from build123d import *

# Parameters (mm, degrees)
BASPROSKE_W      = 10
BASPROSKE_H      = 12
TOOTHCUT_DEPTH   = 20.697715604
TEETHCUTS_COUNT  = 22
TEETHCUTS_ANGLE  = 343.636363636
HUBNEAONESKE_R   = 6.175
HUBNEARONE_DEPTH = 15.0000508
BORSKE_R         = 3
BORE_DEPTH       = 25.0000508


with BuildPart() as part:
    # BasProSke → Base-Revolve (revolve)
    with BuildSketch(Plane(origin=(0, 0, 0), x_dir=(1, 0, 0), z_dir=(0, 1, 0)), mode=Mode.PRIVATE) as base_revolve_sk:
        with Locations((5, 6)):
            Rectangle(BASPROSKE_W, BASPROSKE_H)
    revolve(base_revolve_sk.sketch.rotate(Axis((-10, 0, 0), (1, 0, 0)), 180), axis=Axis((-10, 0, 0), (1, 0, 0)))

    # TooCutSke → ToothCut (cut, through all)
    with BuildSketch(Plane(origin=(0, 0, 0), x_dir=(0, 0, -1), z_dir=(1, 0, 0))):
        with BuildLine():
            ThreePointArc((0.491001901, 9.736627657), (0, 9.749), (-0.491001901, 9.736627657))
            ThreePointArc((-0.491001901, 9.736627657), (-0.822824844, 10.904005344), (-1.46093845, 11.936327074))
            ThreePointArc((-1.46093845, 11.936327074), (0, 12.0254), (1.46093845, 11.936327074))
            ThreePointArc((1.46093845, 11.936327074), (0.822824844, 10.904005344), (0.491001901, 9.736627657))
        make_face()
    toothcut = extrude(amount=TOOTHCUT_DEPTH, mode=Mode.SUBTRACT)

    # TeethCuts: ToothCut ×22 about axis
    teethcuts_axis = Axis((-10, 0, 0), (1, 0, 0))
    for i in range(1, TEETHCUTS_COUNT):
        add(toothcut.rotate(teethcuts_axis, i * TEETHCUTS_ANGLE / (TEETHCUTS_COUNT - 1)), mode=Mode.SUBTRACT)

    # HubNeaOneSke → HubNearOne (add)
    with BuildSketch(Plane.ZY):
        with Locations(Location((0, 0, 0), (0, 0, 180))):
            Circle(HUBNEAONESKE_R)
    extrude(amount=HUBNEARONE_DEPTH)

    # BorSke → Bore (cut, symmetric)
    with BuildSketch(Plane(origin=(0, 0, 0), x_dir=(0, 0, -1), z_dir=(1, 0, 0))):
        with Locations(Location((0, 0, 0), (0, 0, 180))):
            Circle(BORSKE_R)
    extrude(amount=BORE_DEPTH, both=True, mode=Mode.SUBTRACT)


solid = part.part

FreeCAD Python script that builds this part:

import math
import FreeCAD as App
import Part
import Sketcher

V = App.Vector
Q = App.Units.Quantity

doc = App.newDocument("Part")
params = doc.addObject("Spreadsheet::Sheet", "Params")
for row, (alias, value) in enumerate([
    ("sketch1_width", "10 mm"),
    ("sketch1_height", "12 mm"),
    ("revolution_angle", "360 deg"),
    ("sketch2_radius", "4.4 mm"),
    ("sketch3_diameter", "12.35 mm"),
    ("pad1_length", "15.000051 mm"),
    ("sketch4_diameter", "6 mm"),
    ("pocket2_length", "50.000102 mm"),
], start=1):
    params.set(f"A{row}", alias)
    params.set(f"B{row}", "=" + value)
    params.setAlias(f"B{row}", alias)

body = doc.addObject("PartDesign::Body", "Body")

# Sketch on XZ plane
sketch1 = body.newObject("Sketcher::SketchObject", "Sketch")
sketch1.AttachmentSupport = (doc.getObject("XZ_Plane"), [""])
sketch1.MapMode = "FlatFace"
sketch1.addGeometry(Part.LineSegment(V(0, -12, 0), V(0, 0, 0)), False)
sketch1.addGeometry(Part.LineSegment(V(0, 0, 0), V(10, 0, 0)), False)
sketch1.addGeometry(Part.LineSegment(V(10, 0, 0), V(10, -12, 0)), False)
sketch1.addGeometry(Part.LineSegment(V(10, -12, 0), V(0, -12, 0)), False)
sketch1.addConstraint(Sketcher.Constraint("Coincident", 0, 2, 1, 1))
sketch1.addConstraint(Sketcher.Constraint("Coincident", 1, 2, 2, 1))
sketch1.addConstraint(Sketcher.Constraint("Coincident", 2, 2, 3, 1))
sketch1.addConstraint(Sketcher.Constraint("Coincident", 3, 2, 0, 1))
sketch1.addConstraint(Sketcher.Constraint("Vertical", 0))
sketch1.addConstraint(Sketcher.Constraint("Horizontal", 1))
sketch1.addConstraint(Sketcher.Constraint("Vertical", 2))
sketch1.addConstraint(Sketcher.Constraint("Horizontal", 3))
sketch1.addConstraint(Sketcher.Constraint("Coincident", 0, 2, -1, 1))
sketch1.addConstraint(Sketcher.Constraint("DistanceX", 1, 1, 1, 2, Q("10 mm")))
sketch1.addConstraint(Sketcher.Constraint("DistanceY", 0, 1, 0, 2, Q("12 mm")))
sketch1.setExpression("Constraints[9]", "Params.sketch1_width")
sketch1.setExpression("Constraints[10]", "Params.sketch1_height")
revolution = body.newObject("PartDesign::Revolution", "Revolution")
revolution.Profile = sketch1
revolution.ReferenceAxis = (sketch1, ["H_Axis"])
revolution.setExpression("Angle", "Params.revolution_angle")

# Sketch on YZ plane
sketch2 = body.newObject("Sketcher::SketchObject", "Sketch001")
sketch2.AttachmentSupport = (doc.getObject("YZ_Plane"), [""])
sketch2.MapMode = "FlatFace"
sketch2.addGeometry(Part.ArcOfCircle(Part.Circle(V(0, 0, 0), V(0, 0, 1), 9.749), math.radians(-2.886885), math.radians(2.886885)), False)
sketch2.addGeometry(Part.ArcOfCircle(Part.Circle(V(9.128784, -4.848814, 0), V(0, 0, 1), 4.4), math.radians(50.351348), math.radians(82.059402)), False)
sketch2.addGeometry(Part.ArcOfCircle(Part.Circle(V(0, 0, 0), V(0, 0, 1), 12.0254), math.radians(-6.977971), math.radians(6.977971)), False)
sketch2.addGeometry(Part.ArcOfCircle(Part.Circle(V(9.128784, 4.848814, 0), V(0, 0, 1), 4.4), math.radians(-82.059402), math.radians(-50.351348)), False)
sketch2.addConstraint(Sketcher.Constraint("Coincident", 0, 1, 1, 2))
sketch2.addConstraint(Sketcher.Constraint("Coincident", 1, 1, 2, 1))
sketch2.addConstraint(Sketcher.Constraint("Coincident", 2, 2, 3, 2))
sketch2.addConstraint(Sketcher.Constraint("Coincident", 3, 1, 0, 2))
sketch2.addConstraint(Sketcher.Constraint("Coincident", 0, 3, -1, 1))
sketch2.addConstraint(Sketcher.Constraint("Coincident", 2, 3, -1, 1))
sketch2.addConstraint(Sketcher.Constraint("Equal", 1, 3))
sketch2.addConstraint(Sketcher.Constraint("Symmetric", 1, 3, 3, 3, -1))
sketch2.addConstraint(Sketcher.Constraint("Radius", 1, Q("4.4 mm")))
sketch2.addConstraint(Sketcher.Constraint("Radius", 0, Q("9.749 mm")))
sketch2.addConstraint(Sketcher.Constraint("Radius", 2, Q("12.0254 mm")))
sketch2.addConstraint(Sketcher.Constraint("DistanceY", 0, 1, -1, 1, Q("0.491002 mm")))
sketch2.addConstraint(Sketcher.Constraint("DistanceX", 0, 1, 1, 1, Q("2.199699 mm")))
sketch2.setExpression("Constraints[8]", "Params.sketch2_radius")
pocket1 = body.newObject("PartDesign::Pocket", "Pocket")
pocket1.Profile = sketch2
pocket1.Type = "ThroughAll"
pocket1.Reversed = True
doc.recompute()

polarpattern = body.newObject("PartDesign::PolarPattern", "PolarPattern")
polarpattern.Originals = [pocket1]
polarpattern.Axis = (doc.getObject("X_Axis"), [""])
polarpattern.Angle = 360
polarpattern.Occurrences = 22
body.Tip = polarpattern

# Sketch on YZ plane
sketch3 = body.newObject("Sketcher::SketchObject", "Sketch002")
sketch3.AttachmentSupport = (doc.getObject("YZ_Plane"), [""])
sketch3.MapMode = "FlatFace"
sketch3.addGeometry(Part.Circle(V(0, 0, 0), V(0, 0, 1), 6.175), False)
sketch3.addConstraint(Sketcher.Constraint("Coincident", 0, 3, -1, 1))
sketch3.addConstraint(Sketcher.Constraint("Diameter", 0, Q("12.35 mm")))
sketch3.setExpression("Constraints[1]", "Params.sketch3_diameter")
pad1 = body.newObject("PartDesign::Pad", "Pad")
pad1.Profile = sketch3
pad1.setExpression("Length", "Params.pad1_length")
pad1.Reversed = True

# Sketch on YZ plane
sketch4 = body.newObject("Sketcher::SketchObject", "Sketch003")
sketch4.AttachmentSupport = (doc.getObject("YZ_Plane"), [""])
sketch4.MapMode = "FlatFace"
sketch4.addGeometry(Part.Circle(V(0, 0, 0), V(0, 0, 1), 3), False)
sketch4.addConstraint(Sketcher.Constraint("Coincident", 0, 3, -1, 1))
sketch4.addConstraint(Sketcher.Constraint("Diameter", 0, Q("6 mm")))
sketch4.setExpression("Constraints[1]", "Params.sketch4_diameter")
pocket2 = body.newObject("PartDesign::Pocket", "Pocket001")
pocket2.Profile = sketch4
pocket2.setExpression("Length", "Params.pocket2_length")
pocket2.Midplane = True

doc.recompute()
